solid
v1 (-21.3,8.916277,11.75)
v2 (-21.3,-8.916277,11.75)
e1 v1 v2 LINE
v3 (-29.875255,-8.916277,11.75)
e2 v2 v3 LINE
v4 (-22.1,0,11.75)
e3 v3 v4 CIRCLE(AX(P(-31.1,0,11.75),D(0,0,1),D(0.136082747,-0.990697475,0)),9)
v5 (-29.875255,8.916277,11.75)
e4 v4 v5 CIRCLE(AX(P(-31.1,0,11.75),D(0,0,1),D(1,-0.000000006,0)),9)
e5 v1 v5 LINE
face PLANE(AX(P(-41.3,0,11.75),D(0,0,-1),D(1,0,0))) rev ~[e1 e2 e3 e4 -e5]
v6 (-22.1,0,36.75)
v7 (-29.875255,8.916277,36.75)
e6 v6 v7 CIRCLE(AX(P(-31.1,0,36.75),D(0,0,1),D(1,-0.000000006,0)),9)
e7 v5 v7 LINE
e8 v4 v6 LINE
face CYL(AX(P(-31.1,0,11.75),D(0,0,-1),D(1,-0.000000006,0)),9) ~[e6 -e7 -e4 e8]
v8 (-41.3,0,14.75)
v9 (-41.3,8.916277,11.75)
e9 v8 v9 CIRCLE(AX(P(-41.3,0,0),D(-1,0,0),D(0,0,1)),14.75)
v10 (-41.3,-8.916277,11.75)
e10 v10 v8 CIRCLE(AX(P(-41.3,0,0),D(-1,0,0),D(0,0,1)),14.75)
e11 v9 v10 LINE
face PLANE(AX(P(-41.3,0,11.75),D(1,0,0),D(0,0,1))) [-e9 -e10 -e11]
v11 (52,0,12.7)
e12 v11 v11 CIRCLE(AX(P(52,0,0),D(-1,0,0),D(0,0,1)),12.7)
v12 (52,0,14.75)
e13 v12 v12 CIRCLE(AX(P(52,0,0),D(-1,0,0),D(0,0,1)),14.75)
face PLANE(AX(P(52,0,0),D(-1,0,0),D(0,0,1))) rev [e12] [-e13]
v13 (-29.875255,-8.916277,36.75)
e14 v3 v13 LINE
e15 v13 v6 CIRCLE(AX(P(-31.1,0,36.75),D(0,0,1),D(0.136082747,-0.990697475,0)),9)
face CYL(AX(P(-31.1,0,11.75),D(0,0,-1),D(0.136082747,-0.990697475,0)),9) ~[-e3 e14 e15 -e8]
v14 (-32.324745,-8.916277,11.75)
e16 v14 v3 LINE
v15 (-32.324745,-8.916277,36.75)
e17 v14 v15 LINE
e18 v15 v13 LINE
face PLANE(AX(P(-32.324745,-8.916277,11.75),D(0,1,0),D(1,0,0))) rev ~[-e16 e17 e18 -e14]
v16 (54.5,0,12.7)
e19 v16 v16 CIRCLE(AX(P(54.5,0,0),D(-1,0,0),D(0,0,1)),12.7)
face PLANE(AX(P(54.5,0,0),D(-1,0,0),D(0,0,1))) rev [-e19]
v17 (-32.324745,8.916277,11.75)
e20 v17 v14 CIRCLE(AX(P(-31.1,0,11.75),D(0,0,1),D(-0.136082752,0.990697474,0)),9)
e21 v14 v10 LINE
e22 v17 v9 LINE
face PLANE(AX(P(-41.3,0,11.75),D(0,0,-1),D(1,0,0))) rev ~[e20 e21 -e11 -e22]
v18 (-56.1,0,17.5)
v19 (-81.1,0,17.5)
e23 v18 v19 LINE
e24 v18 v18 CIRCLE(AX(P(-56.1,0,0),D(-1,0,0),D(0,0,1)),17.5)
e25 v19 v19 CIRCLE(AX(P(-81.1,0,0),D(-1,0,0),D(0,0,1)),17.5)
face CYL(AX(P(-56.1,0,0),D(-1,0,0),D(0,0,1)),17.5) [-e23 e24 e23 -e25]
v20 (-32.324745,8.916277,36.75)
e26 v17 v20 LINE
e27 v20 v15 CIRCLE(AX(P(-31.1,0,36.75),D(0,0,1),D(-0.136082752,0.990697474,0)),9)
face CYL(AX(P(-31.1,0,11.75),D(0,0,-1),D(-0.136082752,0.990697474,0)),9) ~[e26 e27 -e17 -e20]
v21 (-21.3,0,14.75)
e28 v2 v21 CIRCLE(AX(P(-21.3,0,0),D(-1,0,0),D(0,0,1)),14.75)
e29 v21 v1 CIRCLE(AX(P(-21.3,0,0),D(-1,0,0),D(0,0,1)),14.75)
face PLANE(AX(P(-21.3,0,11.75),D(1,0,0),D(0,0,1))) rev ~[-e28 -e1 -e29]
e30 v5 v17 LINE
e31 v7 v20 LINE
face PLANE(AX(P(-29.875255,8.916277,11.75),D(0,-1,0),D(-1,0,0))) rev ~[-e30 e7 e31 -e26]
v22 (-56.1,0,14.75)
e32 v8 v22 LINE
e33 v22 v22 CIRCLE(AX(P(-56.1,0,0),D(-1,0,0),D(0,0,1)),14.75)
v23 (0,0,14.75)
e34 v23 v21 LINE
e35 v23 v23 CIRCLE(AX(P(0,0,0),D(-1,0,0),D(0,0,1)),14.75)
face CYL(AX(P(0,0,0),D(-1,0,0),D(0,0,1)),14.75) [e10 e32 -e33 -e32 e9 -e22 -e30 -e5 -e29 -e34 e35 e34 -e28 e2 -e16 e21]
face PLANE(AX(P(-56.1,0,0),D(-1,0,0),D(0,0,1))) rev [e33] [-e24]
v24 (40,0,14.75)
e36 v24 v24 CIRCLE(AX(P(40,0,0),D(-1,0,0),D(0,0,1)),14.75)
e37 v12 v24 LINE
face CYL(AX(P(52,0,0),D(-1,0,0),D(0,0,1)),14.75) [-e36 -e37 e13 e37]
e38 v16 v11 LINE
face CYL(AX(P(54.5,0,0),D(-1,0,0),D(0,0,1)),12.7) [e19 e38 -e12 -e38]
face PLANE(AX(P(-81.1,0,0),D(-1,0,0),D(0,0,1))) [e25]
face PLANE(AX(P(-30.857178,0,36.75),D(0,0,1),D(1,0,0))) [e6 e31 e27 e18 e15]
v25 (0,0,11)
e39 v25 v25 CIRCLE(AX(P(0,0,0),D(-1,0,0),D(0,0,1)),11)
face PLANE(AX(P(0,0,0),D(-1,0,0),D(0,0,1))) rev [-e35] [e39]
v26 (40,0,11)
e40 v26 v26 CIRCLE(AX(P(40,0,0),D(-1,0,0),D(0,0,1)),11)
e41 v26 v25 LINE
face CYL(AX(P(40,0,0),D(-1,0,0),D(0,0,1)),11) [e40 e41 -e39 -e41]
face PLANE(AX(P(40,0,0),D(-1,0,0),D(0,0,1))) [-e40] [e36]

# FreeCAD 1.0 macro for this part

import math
import FreeCAD as App
import Part
import Sketcher

V = App.Vector
Q = App.Units.Quantity


def add_polygon(sketch, points):
    """Adds a closed chain of lines whose ends are joined by coincident constraints."""
    first, n = sketch.GeometryCount, len(points)
    for a, b in zip(points, points[1:] + points[:1]):
        sketch.addGeometry(Part.LineSegment(App.Vector(*a, 0), App.Vector(*b, 0)), False)
    for i in range(n):
        sketch.addConstraint(Sketcher.Constraint("Coincident", first + i, 2, first + (i + 1) % n, 1))

doc = App.newDocument("Part")
body = doc.addObject("PartDesign::Body", "Body")

# Sketch on XZ plane
sketch1 = doc.addObject("Sketcher::SketchObject", "Sketch")
body.addObject(sketch1)
sketch1.AttachmentSupport = (doc.XZ_Plane, [""])
sketch1.MapMode = "FlatFace"
add_polygon(sketch1, [(-81.1, 0), (54.5, 0), (54.5, 12.7), (52, 12.7), (52, 14.8), (40, 14.8), (40, 11), (0, 11), (0, 14.8), (-56.1, 14.8), (-56.1, 17.5), (-81.1, 17.5)])  # lines 0-11
sketch1.addConstraint([
    Sketcher.Constraint("Horizontal", 0),
    Sketcher.Constraint("Vertical", 1),
    Sketcher.Constraint("Horizontal", 2),
    Sketcher.Constraint("Vertical", 3),
    Sketcher.Constraint("Horizontal", 4),
    Sketcher.Constraint("Vertical", 5),
    Sketcher.Constraint("Horizontal", 6),
    Sketcher.Constraint("Vertical", 7),
    Sketcher.Constraint("Horizontal", 8),
    Sketcher.Constraint("Vertical", 9),
    Sketcher.Constraint("Horizontal", 10),
    Sketcher.Constraint("Vertical", 11),
    Sketcher.Constraint("PointOnObject", 0, 2, -1),
    Sketcher.Constraint("PointOnObject", 6, 2, -2),
    Sketcher.Constraint("Horizontal", 4, 2, 7, 2),
    Sketcher.Constraint("DistanceX", 4, 2, 4, 1, Q("12 mm")),
    Sketcher.Constraint("DistanceX", 6, 2, 6, 1, Q("40 mm")),
    Sketcher.Constraint("DistanceX", 10, 2, 10, 1, Q("25 mm")),
    Sketcher.Constraint("DistanceX", 0, 1, 0, 2, Q("135.6 mm")),
    Sketcher.Constraint("DistanceX", 2, 2, 2, 1, Q("2.5 mm")),
    Sketcher.Constraint("DistanceY", 1, 1, 1, 2, Q("12.7 mm")),
    Sketcher.Constraint("DistanceY", 11, 2, 11, 1, Q("17.5 mm")),
    Sketcher.Constraint("DistanceY", -1, 1, 5, 2, Q("11 mm")),
    Sketcher.Constraint("DistanceY", 3, 1, 3, 2, Q("2.05 mm")),
])
revolution = doc.addObject("PartDesign::Revolution", "Revolution")
body.addObject(revolution)
revolution.Profile = sketch1
revolution.ReferenceAxis = (sketch1, ["H_Axis"])
revolution.Angle = 360

# Sketch on XZ plane
sketch2 = doc.addObject("Sketcher::SketchObject", "Sketch001")
body.addObject(sketch2)
sketch2.AttachmentSupport = (doc.XZ_Plane, [""])
sketch2.MapMode = "FlatFace"
add_polygon(sketch2, [(-41.3, 14.8), (-41.3, 11.8), (-21.3, 11.8), (-21.3, 14.8)])  # lines 0-3
sketch2.addConstraint([
    Sketcher.Constraint("Vertical", 0),
    Sketcher.Constraint("Horizontal", 1),
    Sketcher.Constraint("Vertical", 2),
    Sketcher.Constraint("Horizontal", 3),
    Sketcher.Constraint("DistanceX", 1, 1, 1, 2, Q("20 mm")),
    Sketcher.Constraint("DistanceY", 0, 2, 0, 1, Q("3 mm")),
    Sketcher.Constraint("DistanceX", 0, 2, -1, 1, Q("41.3 mm")),
    Sketcher.Constraint("DistanceY", -1, 1, 0, 2, Q("11.75 mm")),
])
pocket1 = doc.addObject("PartDesign::Pocket", "Pocket")
body.addObject(pocket1)
pocket1.Profile = sketch2
pocket1.Length = 20.2
pocket1.Midplane = True

# Sketch on XY plane
sketch3 = doc.addObject("Sketcher::SketchObject", "Sketch002")
body.addObject(sketch3)
sketch3.AttachmentSupport = (doc.XY_Plane, [""])
sketch3.MapMode = "FlatFace"
sketch3.AttachmentOffset = App.Placement(V(0, 0, 11.75), App.Rotation())
sketch3.addGeometry([
    Part.ArcOfCircle(Part.Circle(V(-31.1, 0, 0), V(0, 0, 1), 9), math.radians(-82), math.radians(0)),  # 0
    Part.ArcOfCircle(Part.Circle(V(-31.1, 0, 0), V(0, 0, 1), 9), math.radians(0), math.radians(82)),  # 1
    Part.LineSegment(V(-29.9, 8.9, 0), V(-32.3, 8.9, 0)),  # 2
    Part.ArcOfCircle(Part.Circle(V(-31.1, 0, 0), V(0, 0, 1), 9), math.radians(98), math.radians(262)),  # 3
    Part.LineSegment(V(-32.3, -8.9, 0), V(-29.9, -8.9, 0)),  # 4
], False)
sketch3.addConstraint([
    Sketcher.Constraint("Tangent", 0, 2, 1, 1),
    Sketcher.Constraint("Coincident", 1, 2, 2, 1),
    Sketcher.Constraint("Coincident", 2, 2, 3, 1),
    Sketcher.Constraint("Coincident", 3, 2, 4, 1),
    Sketcher.Constraint("Coincident", 4, 2, 0, 1),
    Sketcher.Constraint("Horizontal", 2),
    Sketcher.Constraint("Horizontal", 4),
    Sketcher.Constraint("Coincident", 3, 3, 0, 3),
    Sketcher.Constraint("Equal", 0, 1),
    Sketcher.Constraint("Equal", 1, 3),
    Sketcher.Constraint("Symmetric", 2, 2, 3, 2, -1),
    Sketcher.Constraint("PointOnObject", 0, 2, -1),
    Sketcher.Constraint("Radius", 0, Q("9 mm")),
    Sketcher.Constraint("DistanceX", 0, 3, -1, 1, Q("31.1 mm")),
    Sketcher.Constraint("DistanceX", 2, 2, 2, 1, Q("2.44949 mm")),
])
pad1 = doc.addObject("PartDesign::Pad", "Pad")
body.addObject(pad1)
pad1.Profile = sketch3
pad1.Length = 25

doc.recompute()
